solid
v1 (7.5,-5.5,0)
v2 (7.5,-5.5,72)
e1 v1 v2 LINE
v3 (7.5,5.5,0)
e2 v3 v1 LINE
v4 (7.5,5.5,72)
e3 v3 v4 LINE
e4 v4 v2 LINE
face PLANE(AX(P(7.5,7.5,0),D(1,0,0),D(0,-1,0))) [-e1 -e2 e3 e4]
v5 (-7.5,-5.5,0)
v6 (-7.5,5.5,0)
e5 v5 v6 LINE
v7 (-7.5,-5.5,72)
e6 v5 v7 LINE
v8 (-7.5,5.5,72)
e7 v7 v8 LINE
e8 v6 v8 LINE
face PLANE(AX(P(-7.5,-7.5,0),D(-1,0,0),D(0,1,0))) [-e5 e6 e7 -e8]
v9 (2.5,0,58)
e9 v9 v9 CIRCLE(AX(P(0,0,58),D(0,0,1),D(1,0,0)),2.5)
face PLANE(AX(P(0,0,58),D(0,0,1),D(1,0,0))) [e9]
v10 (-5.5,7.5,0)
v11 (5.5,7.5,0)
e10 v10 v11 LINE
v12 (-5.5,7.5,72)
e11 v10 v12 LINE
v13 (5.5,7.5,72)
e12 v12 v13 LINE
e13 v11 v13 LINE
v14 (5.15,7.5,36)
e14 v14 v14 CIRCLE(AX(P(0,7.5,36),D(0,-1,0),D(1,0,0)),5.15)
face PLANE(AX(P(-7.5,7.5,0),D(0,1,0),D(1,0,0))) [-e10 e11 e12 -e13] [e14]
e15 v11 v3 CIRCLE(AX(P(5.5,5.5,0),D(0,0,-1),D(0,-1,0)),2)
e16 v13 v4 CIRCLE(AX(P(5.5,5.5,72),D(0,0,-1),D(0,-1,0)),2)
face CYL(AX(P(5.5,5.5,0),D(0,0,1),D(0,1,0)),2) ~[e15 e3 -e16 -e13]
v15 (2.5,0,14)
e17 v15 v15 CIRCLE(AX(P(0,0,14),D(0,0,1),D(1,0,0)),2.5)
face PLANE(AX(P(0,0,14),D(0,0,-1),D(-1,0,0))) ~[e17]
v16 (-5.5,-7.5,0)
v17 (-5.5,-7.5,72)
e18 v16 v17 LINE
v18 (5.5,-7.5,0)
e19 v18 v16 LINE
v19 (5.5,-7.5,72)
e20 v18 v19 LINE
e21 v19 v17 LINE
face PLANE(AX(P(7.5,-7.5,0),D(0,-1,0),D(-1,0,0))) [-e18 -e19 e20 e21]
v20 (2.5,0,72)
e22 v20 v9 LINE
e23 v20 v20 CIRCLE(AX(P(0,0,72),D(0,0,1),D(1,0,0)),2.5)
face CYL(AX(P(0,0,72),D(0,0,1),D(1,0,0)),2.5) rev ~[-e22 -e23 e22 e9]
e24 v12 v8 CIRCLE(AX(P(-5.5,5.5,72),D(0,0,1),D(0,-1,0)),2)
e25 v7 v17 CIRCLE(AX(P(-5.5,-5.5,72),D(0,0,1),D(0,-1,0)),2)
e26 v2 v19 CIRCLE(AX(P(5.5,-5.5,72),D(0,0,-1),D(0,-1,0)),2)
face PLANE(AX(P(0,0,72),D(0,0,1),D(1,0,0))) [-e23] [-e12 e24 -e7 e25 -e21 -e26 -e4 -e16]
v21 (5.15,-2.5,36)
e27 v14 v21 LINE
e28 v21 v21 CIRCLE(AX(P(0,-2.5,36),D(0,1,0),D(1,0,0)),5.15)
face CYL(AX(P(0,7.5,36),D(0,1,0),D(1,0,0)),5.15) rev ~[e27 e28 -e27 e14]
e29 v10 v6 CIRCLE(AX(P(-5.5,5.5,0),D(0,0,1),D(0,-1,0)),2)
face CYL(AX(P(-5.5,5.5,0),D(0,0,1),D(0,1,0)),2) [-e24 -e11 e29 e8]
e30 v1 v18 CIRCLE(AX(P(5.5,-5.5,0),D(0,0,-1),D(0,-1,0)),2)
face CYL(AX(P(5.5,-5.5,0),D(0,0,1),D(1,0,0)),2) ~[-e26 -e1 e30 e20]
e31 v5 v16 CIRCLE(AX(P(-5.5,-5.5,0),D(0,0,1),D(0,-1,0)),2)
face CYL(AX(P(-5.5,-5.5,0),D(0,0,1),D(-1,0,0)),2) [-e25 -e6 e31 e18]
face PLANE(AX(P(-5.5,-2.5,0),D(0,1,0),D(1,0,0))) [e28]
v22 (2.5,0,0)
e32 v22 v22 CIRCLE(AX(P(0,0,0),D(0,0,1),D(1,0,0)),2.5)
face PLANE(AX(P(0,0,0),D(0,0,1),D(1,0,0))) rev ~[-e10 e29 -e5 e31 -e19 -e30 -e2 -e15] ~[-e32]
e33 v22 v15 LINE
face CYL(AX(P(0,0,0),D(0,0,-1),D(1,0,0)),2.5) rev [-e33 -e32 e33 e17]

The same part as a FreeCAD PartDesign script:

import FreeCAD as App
import Part
import Sketcher
from FreeCAD import Vector
Q = App.Units.Quantity


def edges_at(feature, points):
    """Names of the edges that pass closest to the given points."""
    edges = feature.Shape.Edges
    near = lambda p: min(range(len(edges)), key=lambda i: edges[i].distToShape(Part.Vertex(*p))[0])
    return sorted({f"Edge{near(p) + 1}" for p in points})

doc = App.newDocument("Part")
body = doc.addObject("PartDesign::Body", "Body")

# Sketch on XY plane
sketch1 = body.newObject("Sketcher::SketchObject", "Sketch")
sketch1.AttachmentSupport = (doc.getObject("XY_Plane"), [""])
sketch1.MapMode = "FlatFace"
sketch1.addGeometry(Part.LineSegment(Vector(7.5, 7.5, 0), Vector(-7.5, 7.5, 0)), False)
sketch1.addGeometry(Part.LineSegment(Vector(-7.5, 7.5, 0), Vector(-7.5, -7.5, 0)), False)
sketch1.addGeometry(Part.LineSegment(Vector(-7.5, -7.5, 0), Vector(7.5, -7.5, 0)), False)
sketch1.addGeometry(Part.LineSegment(Vector(7.5, -7.5, 0), Vector(7.5, 7.5, 0)), False)
sketch1.addConstraint(Sketcher.Constraint("Coincident", 0, 2, 1, 1))
sketch1.addConstraint(Sketcher.Constraint("Coincident", 1, 2, 2, 1))
sketch1.addConstraint(Sketcher.Constraint("Coincident", 2, 2, 3, 1))
sketch1.addConstraint(Sketcher.Constraint("Coincident", 3, 2, 0, 1))
sketch1.addConstraint(Sketcher.Constraint("Horizontal", 0))
sketch1.addConstraint(Sketcher.Constraint("Vertical", 1))
sketch1.addConstraint(Sketcher.Constraint("Horizontal", 2))
sketch1.addConstraint(Sketcher.Constraint("Vertical", 3))
sketch1.addConstraint(Sketcher.Constraint("Symmetric", 0, 2, 2, 2, -1, 1))
sketch1.addConstraint(Sketcher.Constraint("Equal", 2, 1))
sketch1.addConstraint(Sketcher.Constraint("DistanceX", 0, 2, 0, 1, Q("15 mm")))
pad1 = body.newObject("PartDesign::Pad", "Pad")
pad1.Profile = sketch1
pad1.Length = 72

# Sketch on XY plane
sketch2 = body.newObject("Sketcher::SketchObject", "Sketch001")
sketch2.AttachmentSupport = (doc.getObject("XY_Plane"), [""])
sketch2.MapMode = "FlatFace"
sketch2.AttachmentOffset = App.Placement(Vector(0, 0, 72), App.Rotation())
sketch2.addGeometry(Part.Circle(Vector(0, 0, 0), Vector(0, 0, 1), 2.5), False)
sketch2.addConstraint(Sketcher.Constraint("Coincident", 0, 3, -1, 1))
sketch2.addConstraint(Sketcher.Constraint("Diameter", 0, Q("5 mm")))
pocket1 = body.newObject("PartDesign::Pocket", "Pocket")
pocket1.Profile = sketch2
pocket1.Length = 14
doc.recompute()

datumplane = body.newObject("PartDesign::Plane", "DatumPlane")
datumplane.AttachmentSupport = (doc.getObject("XY_Plane"), [""])
datumplane.MapMode = "FlatFace"
datumplane.AttachmentOffset = App.Placement(Vector(0, 0, 36), App.Rotation())
mirrored = body.newObject("PartDesign::Mirrored", "Mirrored")
mirrored.Originals = [pocket1]
mirrored.MirrorPlane = (datumplane, [""])
body.Tip = mirrored
doc.recompute()

fillet = body.newObject("PartDesign::Fillet", "Fillet")
fillet.Base = (mirrored, edges_at(mirrored, [
    (7.5, 7.5, 36),
    (-7.5, 7.5, 36),
    (7.5, -7.5, 36),
    (-7.5, -7.5, 36),
]))
fillet.Radius = 2

# Sketch on XZ plane
sketch3 = body.newObject("Sketcher::SketchObject", "Sketch002")
sketch3.AttachmentSupport = (doc.getObject("XZ_Plane"), [""])
sketch3.MapMode = "FlatFace"
sketch3.AttachmentOffset = App.Placement(Vector(0, 0, -7.5), App.Rotation())
sketch3.addGeometry(Part.Circle(Vector(0, 36, 0), Vector(0, 0, 1), 5.15), False)
sketch3.addConstraint(Sketcher.Constraint("PointOnObject", 0, 3, -2))
sketch3.addConstraint(Sketcher.Constraint("Diameter", 0, Q("10.3 mm")))
sketch3.addConstraint(Sketcher.Constraint("DistanceY", -1, 1, 0, 3, Q("36 mm")))
pocket2 = body.newObject("PartDesign::Pocket", "Pocket001")
pocket2.Profile = sketch3
pocket2.Length = 10
pocket2.Reversed = True

doc.recompute()
